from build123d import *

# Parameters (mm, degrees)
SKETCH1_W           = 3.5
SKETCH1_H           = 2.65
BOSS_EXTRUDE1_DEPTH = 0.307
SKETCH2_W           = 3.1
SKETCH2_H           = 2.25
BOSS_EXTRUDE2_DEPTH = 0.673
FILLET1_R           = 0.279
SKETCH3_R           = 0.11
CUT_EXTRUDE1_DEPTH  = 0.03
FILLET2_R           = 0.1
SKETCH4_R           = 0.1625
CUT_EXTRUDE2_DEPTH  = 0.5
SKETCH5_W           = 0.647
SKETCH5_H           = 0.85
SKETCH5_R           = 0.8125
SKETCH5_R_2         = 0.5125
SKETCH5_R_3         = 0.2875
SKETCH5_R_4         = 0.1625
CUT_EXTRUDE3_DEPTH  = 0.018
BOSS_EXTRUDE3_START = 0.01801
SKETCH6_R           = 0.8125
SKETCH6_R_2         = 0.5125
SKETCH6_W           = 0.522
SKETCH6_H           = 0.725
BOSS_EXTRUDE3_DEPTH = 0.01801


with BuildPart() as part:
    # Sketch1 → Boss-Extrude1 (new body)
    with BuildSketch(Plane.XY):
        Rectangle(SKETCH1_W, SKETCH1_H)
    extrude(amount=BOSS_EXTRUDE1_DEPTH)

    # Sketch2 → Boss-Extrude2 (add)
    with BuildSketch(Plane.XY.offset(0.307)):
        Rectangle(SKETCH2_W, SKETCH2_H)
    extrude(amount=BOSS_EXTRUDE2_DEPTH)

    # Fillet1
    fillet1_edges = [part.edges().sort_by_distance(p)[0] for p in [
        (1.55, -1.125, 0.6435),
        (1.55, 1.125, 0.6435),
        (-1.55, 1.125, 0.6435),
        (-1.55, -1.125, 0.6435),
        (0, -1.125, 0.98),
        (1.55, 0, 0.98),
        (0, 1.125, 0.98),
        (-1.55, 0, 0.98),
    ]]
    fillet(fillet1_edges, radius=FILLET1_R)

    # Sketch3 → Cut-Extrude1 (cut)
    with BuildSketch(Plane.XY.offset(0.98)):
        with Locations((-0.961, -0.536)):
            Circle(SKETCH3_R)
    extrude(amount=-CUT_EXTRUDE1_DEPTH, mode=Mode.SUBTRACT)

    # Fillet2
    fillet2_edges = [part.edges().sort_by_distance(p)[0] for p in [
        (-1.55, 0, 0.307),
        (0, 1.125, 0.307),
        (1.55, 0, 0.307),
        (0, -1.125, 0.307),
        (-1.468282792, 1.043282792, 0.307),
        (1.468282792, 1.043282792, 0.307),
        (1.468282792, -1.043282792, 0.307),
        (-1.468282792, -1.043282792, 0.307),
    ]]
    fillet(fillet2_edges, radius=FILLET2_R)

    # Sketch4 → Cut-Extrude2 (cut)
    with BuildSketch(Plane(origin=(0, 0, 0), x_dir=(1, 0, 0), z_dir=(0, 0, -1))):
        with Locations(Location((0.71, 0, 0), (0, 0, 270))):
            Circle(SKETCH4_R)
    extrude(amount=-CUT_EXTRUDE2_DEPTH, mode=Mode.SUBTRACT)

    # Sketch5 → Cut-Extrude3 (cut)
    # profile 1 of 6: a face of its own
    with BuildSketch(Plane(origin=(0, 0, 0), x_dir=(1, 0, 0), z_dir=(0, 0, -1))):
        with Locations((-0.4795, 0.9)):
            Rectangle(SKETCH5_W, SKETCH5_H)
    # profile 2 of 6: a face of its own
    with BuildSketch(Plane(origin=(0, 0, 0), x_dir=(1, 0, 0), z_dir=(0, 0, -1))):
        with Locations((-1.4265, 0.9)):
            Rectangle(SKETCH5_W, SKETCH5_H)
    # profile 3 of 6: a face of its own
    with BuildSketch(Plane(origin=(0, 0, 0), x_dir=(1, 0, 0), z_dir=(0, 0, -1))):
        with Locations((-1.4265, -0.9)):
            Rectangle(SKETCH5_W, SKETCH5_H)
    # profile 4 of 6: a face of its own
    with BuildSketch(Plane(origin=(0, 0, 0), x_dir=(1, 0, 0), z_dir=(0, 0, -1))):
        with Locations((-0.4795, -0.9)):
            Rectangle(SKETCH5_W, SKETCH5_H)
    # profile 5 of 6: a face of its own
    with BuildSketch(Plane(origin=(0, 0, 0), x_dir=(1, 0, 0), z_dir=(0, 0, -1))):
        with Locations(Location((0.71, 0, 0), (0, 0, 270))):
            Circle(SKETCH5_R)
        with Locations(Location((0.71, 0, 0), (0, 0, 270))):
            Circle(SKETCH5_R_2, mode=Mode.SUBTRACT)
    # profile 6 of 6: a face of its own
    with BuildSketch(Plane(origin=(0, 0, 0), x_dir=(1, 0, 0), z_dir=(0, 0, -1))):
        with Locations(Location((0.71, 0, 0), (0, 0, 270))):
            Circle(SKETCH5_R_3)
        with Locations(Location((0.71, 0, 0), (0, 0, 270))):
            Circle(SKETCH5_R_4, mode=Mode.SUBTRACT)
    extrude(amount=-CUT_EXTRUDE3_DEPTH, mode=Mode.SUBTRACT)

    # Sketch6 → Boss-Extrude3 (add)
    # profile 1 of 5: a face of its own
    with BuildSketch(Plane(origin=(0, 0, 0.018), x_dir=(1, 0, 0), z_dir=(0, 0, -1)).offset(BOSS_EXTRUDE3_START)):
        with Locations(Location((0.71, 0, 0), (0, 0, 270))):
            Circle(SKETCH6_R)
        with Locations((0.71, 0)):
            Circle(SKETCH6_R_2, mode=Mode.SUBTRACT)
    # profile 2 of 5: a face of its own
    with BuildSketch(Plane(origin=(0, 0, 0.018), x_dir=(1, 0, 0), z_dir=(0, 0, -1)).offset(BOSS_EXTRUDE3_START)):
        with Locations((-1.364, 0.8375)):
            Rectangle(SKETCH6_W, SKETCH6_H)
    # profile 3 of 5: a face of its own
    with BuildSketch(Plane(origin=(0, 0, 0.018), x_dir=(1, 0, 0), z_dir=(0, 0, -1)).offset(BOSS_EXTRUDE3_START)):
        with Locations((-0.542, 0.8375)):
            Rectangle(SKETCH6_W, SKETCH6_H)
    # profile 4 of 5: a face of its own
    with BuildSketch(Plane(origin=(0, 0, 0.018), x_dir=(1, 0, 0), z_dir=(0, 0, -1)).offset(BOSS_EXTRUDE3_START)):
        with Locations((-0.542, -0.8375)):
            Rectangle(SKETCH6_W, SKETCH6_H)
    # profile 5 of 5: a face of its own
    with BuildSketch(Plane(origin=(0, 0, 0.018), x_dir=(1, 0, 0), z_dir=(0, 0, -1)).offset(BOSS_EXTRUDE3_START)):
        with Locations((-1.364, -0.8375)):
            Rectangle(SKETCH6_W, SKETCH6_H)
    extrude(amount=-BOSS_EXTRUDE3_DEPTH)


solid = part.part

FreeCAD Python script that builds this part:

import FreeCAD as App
import Part
import Sketcher


def edges_at(feature, points):
    """Names of the edges that pass closest to the given points."""
    edges = feature.Shape.Edges
    near = lambda p: min(range(len(edges)), key=lambda i: edges[i].distToShape(Part.Vertex(*p))[0])
    return sorted({f"Edge{near(p) + 1}" for p in points})


def add_polygon(sketch, points):
    """Adds a closed chain of lines whose ends are joined by coincident constraints."""
    first, n = sketch.GeometryCount, len(points)
    for a, b in zip(points, points[1:] + points[:1]):
        sketch.addGeometry(Part.LineSegment(App.Vector(*a, 0), App.Vector(*b, 0)), False)
    for i in range(n):
        sketch.addConstraint(Sketcher.Constraint("Coincident", first + i, 2, first + (i + 1) % n, 1))

doc = App.newDocument("Part")
params = doc.addObject("Spreadsheet::Sheet", "Params")
for row, (alias, value) in enumerate([
    ("sketch1_width", "3.5 mm"),
    ("sketch1_height", "2.65 mm"),
    ("pad1_length", "0.307 mm"),
    ("sketch2_width", "3.1 mm"),
    ("sketch2_height", "2.25 mm"),
    ("pad2_length", "0.673 mm"),
    ("fillet_radius", "0.279 mm"),
    ("sketch3_diameter", "0.22 mm"),
    ("pocket1_length", "0.03 mm"),
    ("fillet2_radius", "0.1 mm"),
    ("pocket2_length", "0.5 mm"),
    ("sketch5_height", "0.85 mm"),
    ("pocket3_length", "0.018 mm"),
    ("pad3_length", "0.01801 mm"),
], start=1):
    params.set(f"A{row}", alias)
    params.set(f"B{row}", "=" + value)
    params.setAlias(f"B{row}", alias)

body = doc.addObject("PartDesign::Body", "Body")

# Sketch on XY plane
sketch1 = body.newObject("Sketcher::SketchObject", "Sketch")
sketch1.AttachmentSupport = (doc.getObject("XY_Plane"), [""])
sketch1.MapMode = "FlatFace"
add_polygon(sketch1, [(-1.75, 1.325), (-1.75, -1.325), (1.75, -1.325), (1.75, 1.325)])  # lines 0-3
sketch1.addConstraint(Sketcher.Constraint("Vertical", 0))
sketch1.addConstraint(Sketcher.Constraint("Horizontal", 1))
sketch1.addConstraint(Sketcher.Constraint("Vertical", 2))
sketch1.addConstraint(Sketcher.Constraint("Horizontal", 3))
sketch1.addConstraint(Sketcher.Constraint("Symmetric", 0, 2, 2, 2, -1, 1))
sketch1.addConstraint(Sketcher.Constraint("DistanceX", 1, 1, 1, 2, 3.5))
sketch1.addConstraint(Sketcher.Constraint("DistanceY", 0, 2, 0, 1, 2.65))
sketch1.setExpression("Constraints[9]", "Params.sketch1_width")
sketch1.setExpression("Constraints[10]", "Params.sketch1_height")
pad1 = body.newObject("PartDesign::Pad", "Pad")
pad1.Profile = sketch1
pad1.setExpression("Length", "Params.pad1_length")

# Sketch on XY plane
sketch2 = body.newObject("Sketcher::SketchObject", "Sketch001")
sketch2.AttachmentSupport = (doc.getObject("XY_Plane"), [""])
sketch2.MapMode = "FlatFace"
sketch2.AttachmentOffset = App.Placement(App.Vector(0, 0, 0.307), App.Rotation())
add_polygon(sketch2, [(-1.55, 1.125), (-1.55, -1.125), (1.55, -1.125), (1.55, 1.125)])  # lines 0-3
sketch2.addConstraint(Sketcher.Constraint("Vertical", 0))
sketch2.addConstraint(Sketcher.Constraint("Horizontal", 1))
sketch2.addConstraint(Sketcher.Constraint("Vertical", 2))
sketch2.addConstraint(Sketcher.Constraint("Horizontal", 3))
sketch2.addConstraint(Sketcher.Constraint("Symmetric", 0, 2, 2, 2, -1, 1))
sketch2.addConstraint(Sketcher.Constraint("DistanceX", 1, 1, 1, 2, 3.1))
sketch2.addConstraint(Sketcher.Constraint("DistanceY", 0, 2, 0, 1, 2.25))
sketch2.setExpression("Constraints[9]", "Params.sketch2_width")
sketch2.setExpression("Constraints[10]", "Params.sketch2_height")
pad2 = body.newObject("PartDesign::Pad", "Pad001")
pad2.Profile = sketch2
pad2.setExpression("Length", "Params.pad2_length")
doc.recompute()

fillet = body.newObject("PartDesign::Fillet", "Fillet")
fillet.Base = (pad2, edges_at(pad2, [
    (1.55, -1.125, 0.643),
    (1.55, 1.125, 0.643),
    (-1.55, 1.125, 0.643),
    (-1.55, -1.125, 0.643),
    (0, -1.125, 0.98),
    (1.55, 0, 0.98),
    (0, 1.125, 0.98),
    (-1.55, 0, 0.98),
]))
fillet.setExpression("Radius", "Params.fillet_radius")

# Sketch on XY plane
sketch3 = body.newObject("Sketcher::SketchObject", "Sketch002")
sketch3.AttachmentSupport = (doc.getObject("XY_Plane"), [""])
sketch3.MapMode = "FlatFace"
sketch3.AttachmentOffset = App.Placement(App.Vector(0, 0, 0.98), App.Rotation())
sketch3.addGeometry(Part.Circle(App.Vector(-0.961, -0.536, 0), App.Vector(0, 0, 1), 0.11), False)
sketch3.addConstraint(Sketcher.Constraint("Diameter", 0, 0.22))
sketch3.addConstraint(Sketcher.Constraint("DistanceX", 0, 3, -1, 1, 0.961))
sketch3.addConstraint(Sketcher.Constraint("DistanceY", 0, 3, -1, 1, 0.536))
sketch3.setExpression("Constraints[0]", "Params.sketch3_diameter")
pocket1 = body.newObject("PartDesign::Pocket", "Pocket")
pocket1.Profile = sketch3
pocket1.setExpression("Length", "Params.pocket1_length")
doc.recompute()

fillet2 = body.newObject("PartDesign::Fillet", "Fillet001")
fillet2.Base = (pocket1, edges_at(pocket1, [
    (-1.55, 0, 0.307),
    (0, 1.125, 0.307),
    (1.55, 0, 0.307),
    (0, -1.125, 0.307),
    (-1.468, 1.043, 0.307),
    (1.468, 1.043, 0.307),
    (1.468, -1.043, 0.307),
    (-1.468, -1.043, 0.307),
]))
fillet2.setExpression("Radius", "Params.fillet2_radius")

# Sketch on XY plane
sketch4 = body.newObject("Sketcher::SketchObject", "Sketch003")
sketch4.AttachmentSupport = (doc.getObject("XY_Plane"), [""])
sketch4.MapMode = "FlatFace"
sketch4.addGeometry(Part.Circle(App.Vector(0.71, 0, 0), App.Vector(0, 0, 1), 0.1625), False)
sketch4.addConstraint(Sketcher.Constraint("PointOnObject", 0, 3, -1))
sketch4.addConstraint(Sketcher.Constraint("Diameter", 0, 0.325))
sketch4.addConstraint(Sketcher.Constraint("DistanceX", -1, 1, 0, 3, 0.71))
pocket2 = body.newObject("PartDesign::Pocket", "Pocket001")
pocket2.Profile = sketch4
pocket2.setExpression("Length", "Params.pocket2_length")
pocket2.Reversed = True

# Sketch on XY plane
sketch5 = body.newObject("Sketcher::SketchObject", "Sketch004")
sketch5.AttachmentSupport = (doc.getObject("XY_Plane"), [""])
sketch5.MapMode = "FlatFace"
add_polygon(sketch5, [(-0.803, -1.325), (-0.803, -0.475), (-0.156, -0.475), (-0.156, -1.325)])  # lines 0-3
add_polygon(sketch5, [(-1.75, -1.325), (-1.75, -0.475), (-1.103, -0.475), (-1.103, -1.325)])  # lines 4-7
add_polygon(sketch5, [(-1.75, 0.475), (-1.75, 1.325), (-1.103, 1.325), (-1.103, 0.475)])  # lines 8-11
add_polygon(sketch5, [(-0.803, 0.475), (-0.803, 1.325), (-0.156, 1.325), (-0.156, 0.475)])  # lines 12-15
sketch5.addGeometry(Part.Circle(App.Vector(0.71, 0, 0), App.Vector(0, 0, 1), 0.8125), False)  # 16
sketch5.addGeometry(Part.Circle(App.Vector(0.71, 0, 0), App.Vector(0, 0, 1), 0.5125), False)  # 17
sketch5.addGeometry(Part.Circle(App.Vector(0.71, 0, 0), App.Vector(0, 0, 1), 0.2875), False)  # 18
sketch5.addGeometry(Part.Circle(App.Vector(0.71, 0, 0), App.Vector(0, 0, 1), 0.1625), False)  # 19
sketch5.addConstraint(Sketcher.Constraint("Vertical", 0))
sketch5.addConstraint(Sketcher.Constraint("Horizontal", 1))
sketch5.addConstraint(Sketcher.Constraint("Vertical", 2))
sketch5.addConstraint(Sketcher.Constraint("Horizontal", 3))
sketch5.addConstraint(Sketcher.Constraint("Vertical", 4))
sketch5.addConstraint(Sketcher.Constraint("Horizontal", 5))
sketch5.addConstraint(Sketcher.Constraint("Vertical", 6))
sketch5.addConstraint(Sketcher.Constraint("Horizontal", 7))
sketch5.addConstraint(Sketcher.Constraint("Vertical", 8))
sketch5.addConstraint(Sketcher.Constraint("Horizontal", 9))
sketch5.addConstraint(Sketcher.Constraint("Vertical", 10))
sketch5.addConstraint(Sketcher.Constraint("Horizontal", 11))
sketch5.addConstraint(Sketcher.Constraint("Vertical", 12))
sketch5.addConstraint(Sketcher.Constraint("Horizontal", 13))
sketch5.addConstraint(Sketcher.Constraint("Vertical", 14))
sketch5.addConstraint(Sketcher.Constraint("Horizontal", 15))
sketch5.addConstraint(Sketcher.Constraint("Coincident", 17, 3, 16, 3))
sketch5.addConstraint(Sketcher.Constraint("Coincident", 18, 3, 16, 3))
sketch5.addConstraint(Sketcher.Constraint("Coincident", 19, 3, 16, 3))
sketch5.addConstraint(Sketcher.Constraint("Symmetric", 7, 2, 8, 2, -1))
sketch5.addConstraint(Sketcher.Constraint("Symmetric", 5, 2, 10, 2, -1))
sketch5.addConstraint(Sketcher.Constraint("Symmetric", 3, 2, 12, 2, -1))
sketch5.addConstraint(Sketcher.Constraint("Symmetric", 1, 2, 14, 2, -1))
sketch5.addConstraint(Sketcher.Constraint("PointOnObject", 16, 3, -1))
sketch5.addConstraint(Sketcher.Constraint("Horizontal", 1, 2, 4, 2))
sketch5.addConstraint(Sketcher.Constraint("Horizontal", 3, 2, 6, 2))
sketch5.addConstraint(Sketcher.Constraint("Equal", 3, 5))
sketch5.addConstraint(Sketcher.Constraint("Diameter", 16, 1.625))
sketch5.addConstraint(Sketcher.Constraint("Diameter", 17, 1.025))
sketch5.addConstraint(Sketcher.Constraint("Diameter", 18, 0.575))
sketch5.addConstraint(Sketcher.Constraint("Diameter", 19, 0.325))
sketch5.addConstraint(Sketcher.Constraint("DistanceY", 0, 1, 0, 2, 0.85))
sketch5.addConstraint(Sketcher.Constraint("DistanceX", 5, 2, 0, 2, 0.3))
sketch5.addConstraint(Sketcher.Constraint("DistanceY", 4, 2, 8, 2, 1.8))
sketch5.addConstraint(Sketcher.Constraint("DistanceX", 1, 1, 1, 2, 0.647))
sketch5.addConstraint(Sketcher.Constraint("DistanceX", -1, 1, 16, 3, 0.71))
sketch5.addConstraint(Sketcher.Constraint("DistanceX", 4, 2, -1, 1, 1.75))
sketch5.setExpression("Constraints[47]", "Params.sketch5_height")
pocket3 = body.newObject("PartDesign::Pocket", "Pocket002")
pocket3.Profile = sketch5
pocket3.setExpression("Length", "Params.pocket3_length")
pocket3.Reversed = True

# Sketch on XY plane
sketch6 = body.newObject("Sketcher::SketchObject", "Sketch005")
sketch6.AttachmentSupport = (doc.getObject("XY_Plane"), [""])
sketch6.MapMode = "FlatFace"
sketch6.AttachmentOffset = App.Placement(App.Vector(0, 0, -0.00001), App.Rotation())
sketch6.addGeometry(Part.Circle(App.Vector(0.71, 0, 0), App.Vector(0, 0, 1), 0.8125), False)  # 0
sketch6.addGeometry(Part.Circle(App.Vector(0.71, 0, 0), App.Vector(0, 0, 1), 0.5125), False)  # 1
add_polygon(sketch6, [(-1.625, -1.2), (-1.625, -0.475), (-1.103, -0.475), (-1.103, -1.2)])  # lines 2-5
add_polygon(sketch6, [(-0.803, -1.2), (-0.803, -0.475), (-0.281, -0.475), (-0.281, -1.2)])  # lines 6-9
add_polygon(sketch6, [(-0.803, 0.475), (-0.803, 1.2), (-0.281, 1.2), (-0.281, 0.475)])  # lines 10-13
add_polygon(sketch6, [(-1.625, 0.475), (-1.625, 1.2), (-1.103, 1.2), (-1.103, 0.475)])  # lines 14-17
sketch6.addConstraint(Sketcher.Constraint("Vertical", 2))
sketch6.addConstraint(Sketcher.Constraint("Horizontal", 3))
sketch6.addConstraint(Sketcher.Constraint("Vertical", 4))
sketch6.addConstraint(Sketcher.Constraint("Horizontal", 5))
sketch6.addConstraint(Sketcher.Constraint("Vertical", 6))
sketch6.addConstraint(Sketcher.Constraint("Horizontal", 7))
sketch6.addConstraint(Sketcher.Constraint("Vertical", 8))
sketch6.addConstraint(Sketcher.Constraint("Horizontal", 9))
sketch6.addConstraint(Sketcher.Constraint("Vertical", 10))
sketch6.addConstraint(Sketcher.Constraint("Horizontal", 11))
sketch6.addConstraint(Sketcher.Constraint("Vertical", 12))
sketch6.addConstraint(Sketcher.Constraint("Horizontal", 13))
sketch6.addConstraint(Sketcher.Constraint("Vertical", 14))
sketch6.addConstraint(Sketcher.Constraint("Horizontal", 15))
sketch6.addConstraint(Sketcher.Constraint("Vertical", 16))
sketch6.addConstraint(Sketcher.Constraint("Horizontal", 17))
sketch6.addConstraint(Sketcher.Constraint("Coincident", 1, 3, 0, 3))
sketch6.addConstraint(Sketcher.Constraint("Symmetric", 9, 2, 10, 2, -1))
sketch6.addConstraint(Sketcher.Constraint("Symmetric", 7, 2, 12, 2, -1))
sketch6.addConstraint(Sketcher.Constraint("Symmetric", 5, 2, 14, 2, -1))
sketch6.addConstraint(Sketcher.Constraint("Symmetric", 3, 2, 16, 2, -1))
sketch6.addConstraint(Sketcher.Constraint("PointOnObject", 0, 3, -1))
sketch6.addConstraint(Sketcher.Constraint("Horizontal", 3, 2, 6, 2))
sketch6.addConstraint(Sketcher.Constraint("Horizontal", 5, 2, 8, 2))
sketch6.addConstraint(Sketcher.Constraint("Equal", 5, 7))
sketch6.addConstraint(Sketcher.Constraint("Diameter", 0, 1.625))
sketch6.addConstraint(Sketcher.Constraint("Diameter", 1, 1.025))
sketch6.addConstraint(Sketcher.Constraint("DistanceY", 4, 2, -1, 1, 1.2))
sketch6.addConstraint(Sketcher.Constraint("DistanceX", 3, 2, 6, 2, 0.3))
sketch6.addConstraint(Sketcher.Constraint("DistanceX", 3, 1, 3, 2, 0.522))
sketch6.addConstraint(Sketcher.Constraint("DistanceY", 2, 1, 2, 2, 0.725))
sketch6.addConstraint(Sketcher.Constraint("DistanceX", -1, 1, 0, 3, 0.71))
sketch6.addConstraint(Sketcher.Constraint("DistanceX", 2, 2, -1, 1, 1.625))
pad3 = body.newObject("PartDesign::Pad", "Pad002")
pad3.Profile = sketch6
pad3.setExpression("Length", "Params.pad3_length")

doc.recompute()
